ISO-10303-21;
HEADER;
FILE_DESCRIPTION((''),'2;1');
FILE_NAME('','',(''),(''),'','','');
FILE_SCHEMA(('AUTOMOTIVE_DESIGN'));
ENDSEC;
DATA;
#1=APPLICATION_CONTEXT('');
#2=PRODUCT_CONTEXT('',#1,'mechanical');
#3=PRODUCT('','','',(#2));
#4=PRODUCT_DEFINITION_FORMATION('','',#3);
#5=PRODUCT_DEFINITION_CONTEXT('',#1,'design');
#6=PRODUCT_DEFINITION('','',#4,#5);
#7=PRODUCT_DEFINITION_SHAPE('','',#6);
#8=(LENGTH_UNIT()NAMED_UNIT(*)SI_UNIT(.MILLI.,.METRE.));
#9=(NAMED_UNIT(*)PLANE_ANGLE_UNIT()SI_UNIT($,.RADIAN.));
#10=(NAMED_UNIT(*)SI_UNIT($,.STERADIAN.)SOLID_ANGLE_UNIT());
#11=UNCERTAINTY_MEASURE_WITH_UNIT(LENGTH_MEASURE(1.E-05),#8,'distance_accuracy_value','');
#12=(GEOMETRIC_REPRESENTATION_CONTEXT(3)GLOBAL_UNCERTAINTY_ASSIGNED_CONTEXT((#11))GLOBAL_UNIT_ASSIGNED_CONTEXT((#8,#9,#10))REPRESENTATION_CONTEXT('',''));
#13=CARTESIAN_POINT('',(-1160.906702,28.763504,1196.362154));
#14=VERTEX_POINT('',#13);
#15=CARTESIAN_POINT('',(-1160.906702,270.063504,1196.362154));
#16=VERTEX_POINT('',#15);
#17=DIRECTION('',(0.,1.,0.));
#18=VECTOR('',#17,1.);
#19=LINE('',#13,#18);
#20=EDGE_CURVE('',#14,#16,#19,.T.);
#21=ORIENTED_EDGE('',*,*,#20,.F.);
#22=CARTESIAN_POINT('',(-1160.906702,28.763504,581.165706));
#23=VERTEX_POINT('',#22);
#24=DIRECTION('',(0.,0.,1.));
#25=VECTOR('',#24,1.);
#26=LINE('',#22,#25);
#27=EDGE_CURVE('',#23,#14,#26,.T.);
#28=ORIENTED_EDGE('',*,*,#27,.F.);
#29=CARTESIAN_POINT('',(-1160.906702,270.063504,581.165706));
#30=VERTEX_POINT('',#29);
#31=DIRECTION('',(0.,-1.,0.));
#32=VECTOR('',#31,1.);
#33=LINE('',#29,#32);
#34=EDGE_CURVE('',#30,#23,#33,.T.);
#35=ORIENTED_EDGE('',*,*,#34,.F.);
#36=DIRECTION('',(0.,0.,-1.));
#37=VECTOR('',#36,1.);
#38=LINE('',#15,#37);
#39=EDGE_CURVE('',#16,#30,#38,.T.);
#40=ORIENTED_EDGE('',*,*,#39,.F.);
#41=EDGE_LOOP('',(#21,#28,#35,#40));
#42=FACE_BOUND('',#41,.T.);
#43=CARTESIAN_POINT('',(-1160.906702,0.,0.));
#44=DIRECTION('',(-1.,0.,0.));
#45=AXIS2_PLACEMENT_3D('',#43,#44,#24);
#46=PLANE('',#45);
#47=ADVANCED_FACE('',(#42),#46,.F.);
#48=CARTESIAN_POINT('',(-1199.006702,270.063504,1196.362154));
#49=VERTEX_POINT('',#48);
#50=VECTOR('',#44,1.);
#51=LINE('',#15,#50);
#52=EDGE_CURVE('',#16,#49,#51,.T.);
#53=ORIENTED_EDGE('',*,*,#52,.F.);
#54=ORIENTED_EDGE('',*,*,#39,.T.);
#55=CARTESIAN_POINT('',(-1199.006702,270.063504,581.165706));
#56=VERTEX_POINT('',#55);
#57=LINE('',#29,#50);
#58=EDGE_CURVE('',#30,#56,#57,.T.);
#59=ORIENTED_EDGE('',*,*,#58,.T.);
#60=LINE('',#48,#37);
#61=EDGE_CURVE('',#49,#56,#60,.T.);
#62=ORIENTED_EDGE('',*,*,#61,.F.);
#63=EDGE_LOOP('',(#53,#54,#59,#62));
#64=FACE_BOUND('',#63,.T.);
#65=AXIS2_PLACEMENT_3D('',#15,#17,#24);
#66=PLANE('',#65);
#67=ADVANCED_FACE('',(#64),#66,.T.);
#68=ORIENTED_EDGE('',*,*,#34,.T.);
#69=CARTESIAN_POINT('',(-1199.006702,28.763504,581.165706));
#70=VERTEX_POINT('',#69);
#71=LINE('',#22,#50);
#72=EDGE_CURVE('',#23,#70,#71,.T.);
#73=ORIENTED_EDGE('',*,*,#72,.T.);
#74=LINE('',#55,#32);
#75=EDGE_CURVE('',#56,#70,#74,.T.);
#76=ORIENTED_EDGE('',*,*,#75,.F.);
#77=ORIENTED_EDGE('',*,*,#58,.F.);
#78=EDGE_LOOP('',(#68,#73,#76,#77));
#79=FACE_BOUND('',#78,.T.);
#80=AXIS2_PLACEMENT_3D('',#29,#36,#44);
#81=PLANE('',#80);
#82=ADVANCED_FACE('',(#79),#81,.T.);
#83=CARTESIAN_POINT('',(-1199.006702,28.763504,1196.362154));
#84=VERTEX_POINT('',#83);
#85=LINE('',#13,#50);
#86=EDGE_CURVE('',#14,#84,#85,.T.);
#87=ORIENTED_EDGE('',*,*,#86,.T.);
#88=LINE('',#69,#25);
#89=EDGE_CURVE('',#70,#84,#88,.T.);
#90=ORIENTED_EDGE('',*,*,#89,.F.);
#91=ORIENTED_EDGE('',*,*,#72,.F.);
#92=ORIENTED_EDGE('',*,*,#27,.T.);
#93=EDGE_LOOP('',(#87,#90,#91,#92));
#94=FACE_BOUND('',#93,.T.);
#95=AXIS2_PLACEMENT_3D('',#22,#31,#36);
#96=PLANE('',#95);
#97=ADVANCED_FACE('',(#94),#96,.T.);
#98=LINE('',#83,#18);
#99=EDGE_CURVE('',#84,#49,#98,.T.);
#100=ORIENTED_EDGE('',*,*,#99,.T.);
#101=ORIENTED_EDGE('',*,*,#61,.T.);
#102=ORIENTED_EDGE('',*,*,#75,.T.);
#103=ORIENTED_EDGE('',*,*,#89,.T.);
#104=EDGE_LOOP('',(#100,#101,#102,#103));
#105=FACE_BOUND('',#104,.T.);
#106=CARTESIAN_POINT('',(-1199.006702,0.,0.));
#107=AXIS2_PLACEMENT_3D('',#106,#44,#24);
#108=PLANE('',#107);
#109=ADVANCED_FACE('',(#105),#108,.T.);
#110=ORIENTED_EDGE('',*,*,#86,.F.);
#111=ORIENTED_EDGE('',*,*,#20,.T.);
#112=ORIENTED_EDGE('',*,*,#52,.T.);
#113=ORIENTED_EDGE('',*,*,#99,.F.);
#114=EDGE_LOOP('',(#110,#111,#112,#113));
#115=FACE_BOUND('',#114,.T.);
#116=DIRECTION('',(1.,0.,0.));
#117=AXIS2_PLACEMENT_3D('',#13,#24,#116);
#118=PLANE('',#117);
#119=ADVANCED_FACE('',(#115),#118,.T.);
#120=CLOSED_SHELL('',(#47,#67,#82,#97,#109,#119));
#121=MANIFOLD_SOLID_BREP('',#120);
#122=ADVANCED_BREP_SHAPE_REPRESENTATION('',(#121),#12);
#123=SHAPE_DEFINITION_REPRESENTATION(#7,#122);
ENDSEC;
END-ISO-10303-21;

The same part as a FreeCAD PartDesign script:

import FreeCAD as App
import Part
import Sketcher
from FreeCAD import Vector
Q = App.Units.Quantity


def add_polygon(sketch, points):
    """Adds a closed chain of lines whose ends are joined by coincident constraints."""
    first, n = sketch.GeometryCount, len(points)
    for a, b in zip(points, points[1:] + points[:1]):
        sketch.addGeometry(Part.LineSegment(App.Vector(*a, 0), App.Vector(*b, 0)), False)
    for i in range(n):
        sketch.addConstraint(Sketcher.Constraint("Coincident", first + i, 2, first + (i + 1) % n, 1))

doc = App.newDocument("Part")
body = doc.addObject("PartDesign::Body", "Body")

sketch1 = body.newObject("Sketcher::SketchObject", "Sketch")
sketch1.AttachmentSupport = (doc.getObject("YZ_Plane"), [""])
sketch1.MapMode = "FlatFace"
sketch1.AttachmentOffset = App.Placement(Vector(0, 0, -1199.006702), App.Rotation())
add_polygon(sketch1, [(270, 581), (29, 581), (29, 1196), (270, 1196)])
sketch1.addConstraint(Sketcher.Constraint("Horizontal", 0))
sketch1.addConstraint(Sketcher.Constraint("Vertical", 1))
sketch1.addConstraint(Sketcher.Constraint("Horizontal", 2))
sketch1.addConstraint(Sketcher.Constraint("Vertical", 3))
sketch1.addConstraint(Sketcher.Constraint("DistanceX", 0, 2, 0, 1, Q("9.5 in")))
sketch1.addConstraint(Sketcher.Constraint("DistanceY", 1, 1, 1, 2, Q("615.196448 mm")))
sketch1.addConstraint(Sketcher.Constraint("DistanceX", -1, 1, 0, 2, Q("28.763504 mm")))
sketch1.addConstraint(Sketcher.Constraint("DistanceY", -1, 1, 0, 2, Q("581.165706 mm")))
pad1 = body.newObject("PartDesign::Pad", "Pad")
pad1.Profile = sketch1
pad1.Length = Q("1.5 in")

doc.recompute()
